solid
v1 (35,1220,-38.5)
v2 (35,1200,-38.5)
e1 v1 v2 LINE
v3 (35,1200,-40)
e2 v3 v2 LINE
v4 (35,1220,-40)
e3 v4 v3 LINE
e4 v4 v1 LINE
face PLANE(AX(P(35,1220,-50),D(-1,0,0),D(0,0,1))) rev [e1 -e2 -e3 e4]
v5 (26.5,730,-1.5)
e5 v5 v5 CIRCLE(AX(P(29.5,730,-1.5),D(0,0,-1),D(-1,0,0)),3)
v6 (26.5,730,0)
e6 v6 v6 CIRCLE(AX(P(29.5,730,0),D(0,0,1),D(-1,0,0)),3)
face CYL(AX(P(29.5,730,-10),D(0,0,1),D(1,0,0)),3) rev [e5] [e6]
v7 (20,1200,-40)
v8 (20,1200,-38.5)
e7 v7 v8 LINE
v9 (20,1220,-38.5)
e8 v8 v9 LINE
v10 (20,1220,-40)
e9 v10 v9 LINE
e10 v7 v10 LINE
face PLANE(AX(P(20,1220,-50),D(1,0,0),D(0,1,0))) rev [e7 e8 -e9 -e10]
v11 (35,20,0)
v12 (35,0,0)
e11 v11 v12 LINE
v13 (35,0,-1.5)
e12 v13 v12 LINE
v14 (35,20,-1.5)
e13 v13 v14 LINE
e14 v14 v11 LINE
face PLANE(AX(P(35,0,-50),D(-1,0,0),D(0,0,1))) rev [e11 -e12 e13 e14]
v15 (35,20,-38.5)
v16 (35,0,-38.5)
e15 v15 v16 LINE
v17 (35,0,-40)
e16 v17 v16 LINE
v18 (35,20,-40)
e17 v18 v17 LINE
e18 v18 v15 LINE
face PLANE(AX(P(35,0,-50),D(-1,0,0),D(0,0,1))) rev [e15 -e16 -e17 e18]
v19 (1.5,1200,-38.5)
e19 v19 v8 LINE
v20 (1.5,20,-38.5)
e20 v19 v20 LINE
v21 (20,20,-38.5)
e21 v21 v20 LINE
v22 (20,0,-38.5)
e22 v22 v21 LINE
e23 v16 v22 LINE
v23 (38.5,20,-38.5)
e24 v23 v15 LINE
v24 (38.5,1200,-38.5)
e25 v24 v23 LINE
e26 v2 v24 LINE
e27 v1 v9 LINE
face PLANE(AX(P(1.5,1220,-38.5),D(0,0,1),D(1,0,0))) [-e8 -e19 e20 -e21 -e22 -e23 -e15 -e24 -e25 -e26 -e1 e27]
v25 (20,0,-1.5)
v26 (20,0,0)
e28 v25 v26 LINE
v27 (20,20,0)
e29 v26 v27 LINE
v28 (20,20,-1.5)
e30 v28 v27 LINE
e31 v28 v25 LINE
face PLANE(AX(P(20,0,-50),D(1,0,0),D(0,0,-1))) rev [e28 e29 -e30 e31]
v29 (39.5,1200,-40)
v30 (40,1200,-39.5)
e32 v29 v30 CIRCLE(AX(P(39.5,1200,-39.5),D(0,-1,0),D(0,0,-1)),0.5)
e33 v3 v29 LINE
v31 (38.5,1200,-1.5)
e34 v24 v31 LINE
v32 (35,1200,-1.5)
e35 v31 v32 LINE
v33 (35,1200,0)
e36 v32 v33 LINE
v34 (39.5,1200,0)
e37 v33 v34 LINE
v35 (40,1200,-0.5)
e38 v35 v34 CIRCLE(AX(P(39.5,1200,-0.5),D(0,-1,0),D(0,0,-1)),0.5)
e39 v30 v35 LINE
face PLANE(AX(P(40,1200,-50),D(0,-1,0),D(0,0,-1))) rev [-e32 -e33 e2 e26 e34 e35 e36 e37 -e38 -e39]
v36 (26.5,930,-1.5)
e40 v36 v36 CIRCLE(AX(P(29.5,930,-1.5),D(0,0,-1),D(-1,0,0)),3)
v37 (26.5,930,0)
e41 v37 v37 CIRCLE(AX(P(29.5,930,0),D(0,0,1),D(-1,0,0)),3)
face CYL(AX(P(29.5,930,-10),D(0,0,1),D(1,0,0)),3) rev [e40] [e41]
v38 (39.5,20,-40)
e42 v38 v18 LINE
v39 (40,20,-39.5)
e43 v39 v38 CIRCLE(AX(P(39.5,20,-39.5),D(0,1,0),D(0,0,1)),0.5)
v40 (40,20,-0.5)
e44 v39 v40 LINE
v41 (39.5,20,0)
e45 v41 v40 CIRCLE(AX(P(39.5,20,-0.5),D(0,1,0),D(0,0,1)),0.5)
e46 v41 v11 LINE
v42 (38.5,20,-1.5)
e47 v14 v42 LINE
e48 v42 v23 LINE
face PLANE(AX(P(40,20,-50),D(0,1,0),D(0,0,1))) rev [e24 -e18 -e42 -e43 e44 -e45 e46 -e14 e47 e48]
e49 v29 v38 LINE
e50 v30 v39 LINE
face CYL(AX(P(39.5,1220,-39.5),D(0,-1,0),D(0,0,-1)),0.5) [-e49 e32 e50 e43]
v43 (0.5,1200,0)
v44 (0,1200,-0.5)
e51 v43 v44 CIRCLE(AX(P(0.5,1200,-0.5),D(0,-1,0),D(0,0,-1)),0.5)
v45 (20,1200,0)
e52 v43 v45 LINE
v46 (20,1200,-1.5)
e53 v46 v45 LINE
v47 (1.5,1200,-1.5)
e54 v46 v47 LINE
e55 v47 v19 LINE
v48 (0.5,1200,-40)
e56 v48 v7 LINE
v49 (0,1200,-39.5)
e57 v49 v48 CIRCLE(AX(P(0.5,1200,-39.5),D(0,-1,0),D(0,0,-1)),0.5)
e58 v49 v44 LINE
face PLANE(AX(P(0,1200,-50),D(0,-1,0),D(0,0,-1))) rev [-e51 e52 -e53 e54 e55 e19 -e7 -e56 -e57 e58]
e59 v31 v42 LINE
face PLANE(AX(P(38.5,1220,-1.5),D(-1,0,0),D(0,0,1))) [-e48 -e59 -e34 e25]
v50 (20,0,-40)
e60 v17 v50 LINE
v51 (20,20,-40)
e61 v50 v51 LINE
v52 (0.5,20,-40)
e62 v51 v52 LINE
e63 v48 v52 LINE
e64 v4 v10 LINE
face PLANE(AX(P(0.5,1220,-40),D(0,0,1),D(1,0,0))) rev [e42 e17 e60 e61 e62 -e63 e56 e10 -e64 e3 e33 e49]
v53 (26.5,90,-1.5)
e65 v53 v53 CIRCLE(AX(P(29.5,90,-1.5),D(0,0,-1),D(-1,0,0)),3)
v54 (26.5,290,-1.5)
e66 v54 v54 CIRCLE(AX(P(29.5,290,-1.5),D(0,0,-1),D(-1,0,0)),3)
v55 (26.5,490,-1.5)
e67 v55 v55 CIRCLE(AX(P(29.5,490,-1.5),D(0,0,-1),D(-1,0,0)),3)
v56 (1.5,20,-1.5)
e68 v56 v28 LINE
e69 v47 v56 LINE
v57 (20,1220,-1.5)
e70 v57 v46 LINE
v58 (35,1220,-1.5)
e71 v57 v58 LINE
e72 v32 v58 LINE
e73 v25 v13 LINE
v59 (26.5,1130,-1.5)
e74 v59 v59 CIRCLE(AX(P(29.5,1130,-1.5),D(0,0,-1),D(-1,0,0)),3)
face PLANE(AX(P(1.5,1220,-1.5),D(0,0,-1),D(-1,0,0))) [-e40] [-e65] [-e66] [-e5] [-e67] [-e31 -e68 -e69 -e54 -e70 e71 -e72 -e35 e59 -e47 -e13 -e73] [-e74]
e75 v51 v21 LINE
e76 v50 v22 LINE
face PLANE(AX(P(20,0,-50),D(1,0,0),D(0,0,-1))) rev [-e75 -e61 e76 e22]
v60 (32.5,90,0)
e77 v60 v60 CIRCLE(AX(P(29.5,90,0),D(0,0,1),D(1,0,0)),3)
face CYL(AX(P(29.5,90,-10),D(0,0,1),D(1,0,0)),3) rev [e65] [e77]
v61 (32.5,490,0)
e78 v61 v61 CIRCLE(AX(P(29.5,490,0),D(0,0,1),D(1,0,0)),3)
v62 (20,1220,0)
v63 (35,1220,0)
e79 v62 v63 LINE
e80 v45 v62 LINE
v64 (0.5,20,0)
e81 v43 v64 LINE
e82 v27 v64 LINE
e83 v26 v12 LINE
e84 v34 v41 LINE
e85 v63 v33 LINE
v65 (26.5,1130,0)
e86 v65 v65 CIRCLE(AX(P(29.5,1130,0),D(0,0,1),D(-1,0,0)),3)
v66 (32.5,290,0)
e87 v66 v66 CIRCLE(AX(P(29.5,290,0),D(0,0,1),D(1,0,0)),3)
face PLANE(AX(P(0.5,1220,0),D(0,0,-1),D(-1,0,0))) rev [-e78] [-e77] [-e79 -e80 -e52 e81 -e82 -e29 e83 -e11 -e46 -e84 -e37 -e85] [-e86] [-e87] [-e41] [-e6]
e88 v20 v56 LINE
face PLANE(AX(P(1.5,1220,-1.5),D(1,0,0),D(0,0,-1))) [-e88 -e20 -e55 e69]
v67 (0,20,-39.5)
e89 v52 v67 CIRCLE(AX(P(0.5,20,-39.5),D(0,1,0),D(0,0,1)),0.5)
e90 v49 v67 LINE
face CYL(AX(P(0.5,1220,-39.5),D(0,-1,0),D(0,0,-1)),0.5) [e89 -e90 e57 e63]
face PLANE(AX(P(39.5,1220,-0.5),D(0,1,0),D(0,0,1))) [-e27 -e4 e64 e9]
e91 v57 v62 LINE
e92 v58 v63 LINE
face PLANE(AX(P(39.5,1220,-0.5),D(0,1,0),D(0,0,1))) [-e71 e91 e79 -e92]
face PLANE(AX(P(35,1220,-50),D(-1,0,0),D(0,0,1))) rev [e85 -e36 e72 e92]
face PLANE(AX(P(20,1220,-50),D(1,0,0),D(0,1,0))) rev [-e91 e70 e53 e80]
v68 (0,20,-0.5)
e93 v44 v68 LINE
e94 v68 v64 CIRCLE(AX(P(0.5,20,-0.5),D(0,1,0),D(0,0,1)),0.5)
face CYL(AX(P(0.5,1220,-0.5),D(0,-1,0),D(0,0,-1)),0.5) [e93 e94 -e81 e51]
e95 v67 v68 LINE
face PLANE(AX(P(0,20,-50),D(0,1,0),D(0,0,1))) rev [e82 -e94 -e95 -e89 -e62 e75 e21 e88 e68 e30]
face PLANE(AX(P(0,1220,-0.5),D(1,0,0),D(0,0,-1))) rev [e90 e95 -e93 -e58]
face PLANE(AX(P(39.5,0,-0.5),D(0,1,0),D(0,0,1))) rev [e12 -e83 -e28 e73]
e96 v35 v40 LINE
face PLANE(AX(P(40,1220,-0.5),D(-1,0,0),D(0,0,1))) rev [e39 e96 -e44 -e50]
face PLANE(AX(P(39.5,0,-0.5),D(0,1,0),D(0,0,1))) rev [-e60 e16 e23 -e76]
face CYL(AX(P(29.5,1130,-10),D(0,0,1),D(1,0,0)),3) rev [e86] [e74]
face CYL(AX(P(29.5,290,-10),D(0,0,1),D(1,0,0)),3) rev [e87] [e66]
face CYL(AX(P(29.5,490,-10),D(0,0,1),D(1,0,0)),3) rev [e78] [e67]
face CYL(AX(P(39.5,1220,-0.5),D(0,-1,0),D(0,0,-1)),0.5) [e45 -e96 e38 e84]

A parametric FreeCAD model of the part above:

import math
import FreeCAD as App
import Part
import Sketcher

V = App.Vector


def add_polygon(sketch, points):
    """Adds a closed chain of lines whose ends are joined by coincident constraints."""
    first, n = sketch.GeometryCount, len(points)
    for a, b in zip(points, points[1:] + points[:1]):
        sketch.addGeometry(Part.LineSegment(App.Vector(*a, 0), App.Vector(*b, 0)), False)
    for i in range(n):
        sketch.addConstraint(Sketcher.Constraint("Coincident", first + i, 2, first + (i + 1) % n, 1))

doc = App.newDocument("Part")
body = doc.addObject("PartDesign::Body", "Body")

# Sketch on XZ plane
sketch1 = body.newObject("Sketcher::SketchObject", "Sketch")
sketch1.AttachmentSupport = (doc.getObject("XZ_Plane"), [""])
sketch1.MapMode = "FlatFace"
sketch1.addGeometry(Part.LineSegment(V(0.5, 0, 0), V(39.5, 0, 0)), False)  # 0
sketch1.addGeometry(Part.ArcOfCircle(Part.Circle(V(39.5, -0.5, 0), V(0, 0, 1), 0.5), math.radians(0), math.radians(90)), False)  # 1
sketch1.addGeometry(Part.LineSegment(V(40, -0.5, 0), V(40, -39.5, 0)), False)  # 2
sketch1.addGeometry(Part.ArcOfCircle(Part.Circle(V(39.5, -39.5, 0), V(0, 0, 1), 0.5), math.radians(-90), math.radians(0)), False)  # 3
sketch1.addGeometry(Part.LineSegment(V(39.5, -40, 0), V(0.5, -40, 0)), False)  # 4
sketch1.addGeometry(Part.ArcOfCircle(Part.Circle(V(0.5, -39.5, 0), V(0, 0, 1), 0.5), math.radians(180), math.radians(270)), False)  # 5
sketch1.addGeometry(Part.LineSegment(V(0, -39.5, 0), V(0, -0.5, 0)), False)  # 6
sketch1.addGeometry(Part.ArcOfCircle(Part.Circle(V(0.5, -0.5, 0), V(0, 0, 1), 0.5), math.radians(90), math.radians(180)), False)  # 7
add_polygon(sketch1, [(38.5, -1.5), (1.5, -1.5), (1.5, -38.5), (38.5, -38.5)])  # lines 8-11
sketch1.addConstraint(Sketcher.Constraint("Tangent", 0, 2, 1, 2))
sketch1.addConstraint(Sketcher.Constraint("Tangent", 1, 1, 2, 1))
sketch1.addConstraint(Sketcher.Constraint("Tangent", 2, 2, 3, 2))
sketch1.addConstraint(Sketcher.Constraint("Tangent", 3, 1, 4, 1))
sketch1.addConstraint(Sketcher.Constraint("Tangent", 4, 2, 5, 2))
sketch1.addConstraint(Sketcher.Constraint("Tangent", 5, 1, 6, 1))
sketch1.addConstraint(Sketcher.Constraint("Tangent", 6, 2, 7, 2))
sketch1.addConstraint(Sketcher.Constraint("Tangent", 7, 1, 0, 1))
sketch1.addConstraint(Sketcher.Constraint("Horizontal", 0))
sketch1.addConstraint(Sketcher.Constraint("Vertical", 2))
sketch1.addConstraint(Sketcher.Constraint("Horizontal", 4))
sketch1.addConstraint(Sketcher.Constraint("Vertical", 6))
sketch1.addConstraint(Sketcher.Constraint("Horizontal", 8))
sketch1.addConstraint(Sketcher.Constraint("Vertical", 9))
sketch1.addConstraint(Sketcher.Constraint("Horizontal", 10))
sketch1.addConstraint(Sketcher.Constraint("Vertical", 11))
sketch1.addConstraint(Sketcher.Constraint("Equal", 1, 3))
sketch1.addConstraint(Sketcher.Constraint("Equal", 3, 5))
sketch1.addConstraint(Sketcher.Constraint("Equal", 5, 7))
sketch1.addConstraint(Sketcher.Constraint("PointOnObject", 0, 2, -1))
sketch1.addConstraint(Sketcher.Constraint("PointOnObject", 5, 1, -2))
sketch1.addConstraint(Sketcher.Constraint("Equal", 4, 2))
sketch1.addConstraint(Sketcher.Constraint("Equal", 10, 9))
sketch1.addConstraint(Sketcher.Constraint("Radius", 1, 0.5))
sketch1.addConstraint(Sketcher.Constraint("DistanceX", 0, 1, 0, 2, 39.0))
sketch1.addConstraint(Sketcher.Constraint("DistanceX", 8, 2, 8, 1, 37.0))
sketch1.addConstraint(Sketcher.Constraint("DistanceX", 7, 3, 8, 2, 1.0))
sketch1.addConstraint(Sketcher.Constraint("DistanceY", 8, 2, 7, 3, 1.0))
pad1 = body.newObject("PartDesign::Pad", "Pad")
pad1.Profile = sketch1
pad1.Length = 1220
pad1.Reversed = True

# Sketch on XY plane
sketch2 = body.newObject("Sketcher::SketchObject", "Sketch001")
sketch2.AttachmentSupport = (doc.getObject("XY_Plane"), [""])
sketch2.MapMode = "FlatFace"
add_polygon(sketch2, [(0, 1220), (0, 1200), (20, 1200), (20, 1220)])  # lines 0-3
add_polygon(sketch2, [(35, 1220), (35, 1200), (40, 1200), (40, 1220)])  # lines 4-7
add_polygon(sketch2, [(0, 20), (0, 0), (20, 0), (20, 20)])  # lines 8-11
add_polygon(sketch2, [(35, 20), (35, 0), (40, 0), (40, 20)])  # lines 12-15
sketch2.addConstraint(Sketcher.Constraint("Vertical", 0))
sketch2.addConstraint(Sketcher.Constraint("Horizontal", 1))
sketch2.addConstraint(Sketcher.Constraint("Vertical", 2))
sketch2.addConstraint(Sketcher.Constraint("Horizontal", 3))
sketch2.addConstraint(Sketcher.Constraint("Vertical", 4))
sketch2.addConstraint(Sketcher.Constraint("Horizontal", 5))
sketch2.addConstraint(Sketcher.Constraint("Vertical", 6))
sketch2.addConstraint(Sketcher.Constraint("Horizontal", 7))
sketch2.addConstraint(Sketcher.Constraint("Vertical", 8))
sketch2.addConstraint(Sketcher.Constraint("Horizontal", 9))
sketch2.addConstraint(Sketcher.Constraint("Vertical", 10))
sketch2.addConstraint(Sketcher.Constraint("Horizontal", 11))
sketch2.addConstraint(Sketcher.Constraint("Vertical", 12))
sketch2.addConstraint(Sketcher.Constraint("Horizontal", 13))
sketch2.addConstraint(Sketcher.Constraint("Vertical", 14))
sketch2.addConstraint(Sketcher.Constraint("Horizontal", 15))
sketch2.addConstraint(Sketcher.Constraint("Coincident", 8, 2, -1, 1))
sketch2.addConstraint(Sketcher.Constraint("PointOnObject", 0, 2, -2))
sketch2.addConstraint(Sketcher.Constraint("PointOnObject", 12, 2, -1))
sketch2.addConstraint(Sketcher.Constraint("Horizontal", 1, 2, 4, 2))
sketch2.addConstraint(Sketcher.Constraint("Horizontal", 3, 2, 6, 2))
sketch2.addConstraint(Sketcher.Constraint("Horizontal", 11, 2, 14, 2))
sketch2.addConstraint(Sketcher.Constraint("Vertical", 2, 2, 9, 2))
sketch2.addConstraint(Sketcher.Constraint("Vertical", 7, 2, 12, 2))
sketch2.addConstraint(Sketcher.Constraint("Vertical", 6, 2, 13, 2))
sketch2.addConstraint(Sketcher.Constraint("Equal", 11, 0))
sketch2.addConstraint(Sketcher.Constraint("Equal", 6, 8))
sketch2.addConstraint(Sketcher.Constraint("DistanceX", 1, 1, 1, 2, 20.0))
sketch2.addConstraint(Sketcher.Constraint("DistanceX", 5, 1, 5, 2, 5.0))
sketch2.addConstraint(Sketcher.Constraint("DistanceY", -1, 1, 0, 2, 1200.0))
sketch2.addConstraint(Sketcher.Constraint("DistanceX", -1, 1, 4, 2, 35.0))
pocket1 = body.newObject("PartDesign::Pocket", "Pocket")
pocket1.Profile = sketch2
pocket1.Length = 50

# Sketch on XY plane
sketch3 = body.newObject("Sketcher::SketchObject", "Sketch002")
sketch3.AttachmentSupport = (doc.getObject("XY_Plane"), [""])
sketch3.MapMode = "FlatFace"
sketch3.addGeometry(Part.Circle(V(29.5, 90, 0), V(0, 0, 1), 3), False)
sketch3.addGeometry(Part.Circle(V(29.5, 290, 0), V(0, 0, 1), 3), False)
sketch3.addGeometry(Part.Circle(V(29.5, 490, 0), V(0, 0, 1), 3), False)
sketch3.addGeometry(Part.Circle(V(29.5, 730, 0), V(0, 0, 1), 3), False)
sketch3.addGeometry(Part.Circle(V(29.5, 930, 0), V(0, 0, 1), 3), False)
sketch3.addGeometry(Part.Circle(V(29.5, 1130, 0), V(0, 0, 1), 3), False)
sketch3.addConstraint(Sketcher.Constraint("Equal", 0, 1))
sketch3.addConstraint(Sketcher.Constraint("Equal", 1, 2))
sketch3.addConstraint(Sketcher.Constraint("Equal", 2, 3))
sketch3.addConstraint(Sketcher.Constraint("Equal", 3, 4))
sketch3.addConstraint(Sketcher.Constraint("Equal", 4, 5))
sketch3.addConstraint(Sketcher.Constraint("Vertical", 0, 3, 1, 3))
sketch3.addConstraint(Sketcher.Constraint("Vertical", 1, 3, 2, 3))
sketch3.addConstraint(Sketcher.Constraint("Vertical", 2, 3, 3, 3))
sketch3.addConstraint(Sketcher.Constraint("Vertical", 3, 3, 4, 3))
sketch3.addConstraint(Sketcher.Constraint("Vertical", 4, 3, 5, 3))
sketch3.addConstraint(Sketcher.Constraint("Diameter", 0, 6.0))
sketch3.addConstraint(Sketcher.Constraint("DistanceY", -1, 1, 0, 3, 90.0))
sketch3.addConstraint(Sketcher.Constraint("DistanceY", -1, 1, 1, 3, 290.0))
sketch3.addConstraint(Sketcher.Constraint("DistanceY", -1, 1, 2, 3, 490.0))
sketch3.addConstraint(Sketcher.Constraint("DistanceY", -1, 1, 3, 3, 730.0))
sketch3.addConstraint(Sketcher.Constraint("DistanceY", -1, 1, 4, 3, 930.0))
sketch3.addConstraint(Sketcher.Constraint("DistanceY", -1, 1, 5, 3, 1130.0))
sketch3.addConstraint(Sketcher.Constraint("DistanceX", -1, 1, 0, 3, 29.5))
pocket2 = body.newObject("PartDesign::Pocket", "Pocket001")
pocket2.Profile = sketch3
pocket2.Length = 10

doc.recompute()
